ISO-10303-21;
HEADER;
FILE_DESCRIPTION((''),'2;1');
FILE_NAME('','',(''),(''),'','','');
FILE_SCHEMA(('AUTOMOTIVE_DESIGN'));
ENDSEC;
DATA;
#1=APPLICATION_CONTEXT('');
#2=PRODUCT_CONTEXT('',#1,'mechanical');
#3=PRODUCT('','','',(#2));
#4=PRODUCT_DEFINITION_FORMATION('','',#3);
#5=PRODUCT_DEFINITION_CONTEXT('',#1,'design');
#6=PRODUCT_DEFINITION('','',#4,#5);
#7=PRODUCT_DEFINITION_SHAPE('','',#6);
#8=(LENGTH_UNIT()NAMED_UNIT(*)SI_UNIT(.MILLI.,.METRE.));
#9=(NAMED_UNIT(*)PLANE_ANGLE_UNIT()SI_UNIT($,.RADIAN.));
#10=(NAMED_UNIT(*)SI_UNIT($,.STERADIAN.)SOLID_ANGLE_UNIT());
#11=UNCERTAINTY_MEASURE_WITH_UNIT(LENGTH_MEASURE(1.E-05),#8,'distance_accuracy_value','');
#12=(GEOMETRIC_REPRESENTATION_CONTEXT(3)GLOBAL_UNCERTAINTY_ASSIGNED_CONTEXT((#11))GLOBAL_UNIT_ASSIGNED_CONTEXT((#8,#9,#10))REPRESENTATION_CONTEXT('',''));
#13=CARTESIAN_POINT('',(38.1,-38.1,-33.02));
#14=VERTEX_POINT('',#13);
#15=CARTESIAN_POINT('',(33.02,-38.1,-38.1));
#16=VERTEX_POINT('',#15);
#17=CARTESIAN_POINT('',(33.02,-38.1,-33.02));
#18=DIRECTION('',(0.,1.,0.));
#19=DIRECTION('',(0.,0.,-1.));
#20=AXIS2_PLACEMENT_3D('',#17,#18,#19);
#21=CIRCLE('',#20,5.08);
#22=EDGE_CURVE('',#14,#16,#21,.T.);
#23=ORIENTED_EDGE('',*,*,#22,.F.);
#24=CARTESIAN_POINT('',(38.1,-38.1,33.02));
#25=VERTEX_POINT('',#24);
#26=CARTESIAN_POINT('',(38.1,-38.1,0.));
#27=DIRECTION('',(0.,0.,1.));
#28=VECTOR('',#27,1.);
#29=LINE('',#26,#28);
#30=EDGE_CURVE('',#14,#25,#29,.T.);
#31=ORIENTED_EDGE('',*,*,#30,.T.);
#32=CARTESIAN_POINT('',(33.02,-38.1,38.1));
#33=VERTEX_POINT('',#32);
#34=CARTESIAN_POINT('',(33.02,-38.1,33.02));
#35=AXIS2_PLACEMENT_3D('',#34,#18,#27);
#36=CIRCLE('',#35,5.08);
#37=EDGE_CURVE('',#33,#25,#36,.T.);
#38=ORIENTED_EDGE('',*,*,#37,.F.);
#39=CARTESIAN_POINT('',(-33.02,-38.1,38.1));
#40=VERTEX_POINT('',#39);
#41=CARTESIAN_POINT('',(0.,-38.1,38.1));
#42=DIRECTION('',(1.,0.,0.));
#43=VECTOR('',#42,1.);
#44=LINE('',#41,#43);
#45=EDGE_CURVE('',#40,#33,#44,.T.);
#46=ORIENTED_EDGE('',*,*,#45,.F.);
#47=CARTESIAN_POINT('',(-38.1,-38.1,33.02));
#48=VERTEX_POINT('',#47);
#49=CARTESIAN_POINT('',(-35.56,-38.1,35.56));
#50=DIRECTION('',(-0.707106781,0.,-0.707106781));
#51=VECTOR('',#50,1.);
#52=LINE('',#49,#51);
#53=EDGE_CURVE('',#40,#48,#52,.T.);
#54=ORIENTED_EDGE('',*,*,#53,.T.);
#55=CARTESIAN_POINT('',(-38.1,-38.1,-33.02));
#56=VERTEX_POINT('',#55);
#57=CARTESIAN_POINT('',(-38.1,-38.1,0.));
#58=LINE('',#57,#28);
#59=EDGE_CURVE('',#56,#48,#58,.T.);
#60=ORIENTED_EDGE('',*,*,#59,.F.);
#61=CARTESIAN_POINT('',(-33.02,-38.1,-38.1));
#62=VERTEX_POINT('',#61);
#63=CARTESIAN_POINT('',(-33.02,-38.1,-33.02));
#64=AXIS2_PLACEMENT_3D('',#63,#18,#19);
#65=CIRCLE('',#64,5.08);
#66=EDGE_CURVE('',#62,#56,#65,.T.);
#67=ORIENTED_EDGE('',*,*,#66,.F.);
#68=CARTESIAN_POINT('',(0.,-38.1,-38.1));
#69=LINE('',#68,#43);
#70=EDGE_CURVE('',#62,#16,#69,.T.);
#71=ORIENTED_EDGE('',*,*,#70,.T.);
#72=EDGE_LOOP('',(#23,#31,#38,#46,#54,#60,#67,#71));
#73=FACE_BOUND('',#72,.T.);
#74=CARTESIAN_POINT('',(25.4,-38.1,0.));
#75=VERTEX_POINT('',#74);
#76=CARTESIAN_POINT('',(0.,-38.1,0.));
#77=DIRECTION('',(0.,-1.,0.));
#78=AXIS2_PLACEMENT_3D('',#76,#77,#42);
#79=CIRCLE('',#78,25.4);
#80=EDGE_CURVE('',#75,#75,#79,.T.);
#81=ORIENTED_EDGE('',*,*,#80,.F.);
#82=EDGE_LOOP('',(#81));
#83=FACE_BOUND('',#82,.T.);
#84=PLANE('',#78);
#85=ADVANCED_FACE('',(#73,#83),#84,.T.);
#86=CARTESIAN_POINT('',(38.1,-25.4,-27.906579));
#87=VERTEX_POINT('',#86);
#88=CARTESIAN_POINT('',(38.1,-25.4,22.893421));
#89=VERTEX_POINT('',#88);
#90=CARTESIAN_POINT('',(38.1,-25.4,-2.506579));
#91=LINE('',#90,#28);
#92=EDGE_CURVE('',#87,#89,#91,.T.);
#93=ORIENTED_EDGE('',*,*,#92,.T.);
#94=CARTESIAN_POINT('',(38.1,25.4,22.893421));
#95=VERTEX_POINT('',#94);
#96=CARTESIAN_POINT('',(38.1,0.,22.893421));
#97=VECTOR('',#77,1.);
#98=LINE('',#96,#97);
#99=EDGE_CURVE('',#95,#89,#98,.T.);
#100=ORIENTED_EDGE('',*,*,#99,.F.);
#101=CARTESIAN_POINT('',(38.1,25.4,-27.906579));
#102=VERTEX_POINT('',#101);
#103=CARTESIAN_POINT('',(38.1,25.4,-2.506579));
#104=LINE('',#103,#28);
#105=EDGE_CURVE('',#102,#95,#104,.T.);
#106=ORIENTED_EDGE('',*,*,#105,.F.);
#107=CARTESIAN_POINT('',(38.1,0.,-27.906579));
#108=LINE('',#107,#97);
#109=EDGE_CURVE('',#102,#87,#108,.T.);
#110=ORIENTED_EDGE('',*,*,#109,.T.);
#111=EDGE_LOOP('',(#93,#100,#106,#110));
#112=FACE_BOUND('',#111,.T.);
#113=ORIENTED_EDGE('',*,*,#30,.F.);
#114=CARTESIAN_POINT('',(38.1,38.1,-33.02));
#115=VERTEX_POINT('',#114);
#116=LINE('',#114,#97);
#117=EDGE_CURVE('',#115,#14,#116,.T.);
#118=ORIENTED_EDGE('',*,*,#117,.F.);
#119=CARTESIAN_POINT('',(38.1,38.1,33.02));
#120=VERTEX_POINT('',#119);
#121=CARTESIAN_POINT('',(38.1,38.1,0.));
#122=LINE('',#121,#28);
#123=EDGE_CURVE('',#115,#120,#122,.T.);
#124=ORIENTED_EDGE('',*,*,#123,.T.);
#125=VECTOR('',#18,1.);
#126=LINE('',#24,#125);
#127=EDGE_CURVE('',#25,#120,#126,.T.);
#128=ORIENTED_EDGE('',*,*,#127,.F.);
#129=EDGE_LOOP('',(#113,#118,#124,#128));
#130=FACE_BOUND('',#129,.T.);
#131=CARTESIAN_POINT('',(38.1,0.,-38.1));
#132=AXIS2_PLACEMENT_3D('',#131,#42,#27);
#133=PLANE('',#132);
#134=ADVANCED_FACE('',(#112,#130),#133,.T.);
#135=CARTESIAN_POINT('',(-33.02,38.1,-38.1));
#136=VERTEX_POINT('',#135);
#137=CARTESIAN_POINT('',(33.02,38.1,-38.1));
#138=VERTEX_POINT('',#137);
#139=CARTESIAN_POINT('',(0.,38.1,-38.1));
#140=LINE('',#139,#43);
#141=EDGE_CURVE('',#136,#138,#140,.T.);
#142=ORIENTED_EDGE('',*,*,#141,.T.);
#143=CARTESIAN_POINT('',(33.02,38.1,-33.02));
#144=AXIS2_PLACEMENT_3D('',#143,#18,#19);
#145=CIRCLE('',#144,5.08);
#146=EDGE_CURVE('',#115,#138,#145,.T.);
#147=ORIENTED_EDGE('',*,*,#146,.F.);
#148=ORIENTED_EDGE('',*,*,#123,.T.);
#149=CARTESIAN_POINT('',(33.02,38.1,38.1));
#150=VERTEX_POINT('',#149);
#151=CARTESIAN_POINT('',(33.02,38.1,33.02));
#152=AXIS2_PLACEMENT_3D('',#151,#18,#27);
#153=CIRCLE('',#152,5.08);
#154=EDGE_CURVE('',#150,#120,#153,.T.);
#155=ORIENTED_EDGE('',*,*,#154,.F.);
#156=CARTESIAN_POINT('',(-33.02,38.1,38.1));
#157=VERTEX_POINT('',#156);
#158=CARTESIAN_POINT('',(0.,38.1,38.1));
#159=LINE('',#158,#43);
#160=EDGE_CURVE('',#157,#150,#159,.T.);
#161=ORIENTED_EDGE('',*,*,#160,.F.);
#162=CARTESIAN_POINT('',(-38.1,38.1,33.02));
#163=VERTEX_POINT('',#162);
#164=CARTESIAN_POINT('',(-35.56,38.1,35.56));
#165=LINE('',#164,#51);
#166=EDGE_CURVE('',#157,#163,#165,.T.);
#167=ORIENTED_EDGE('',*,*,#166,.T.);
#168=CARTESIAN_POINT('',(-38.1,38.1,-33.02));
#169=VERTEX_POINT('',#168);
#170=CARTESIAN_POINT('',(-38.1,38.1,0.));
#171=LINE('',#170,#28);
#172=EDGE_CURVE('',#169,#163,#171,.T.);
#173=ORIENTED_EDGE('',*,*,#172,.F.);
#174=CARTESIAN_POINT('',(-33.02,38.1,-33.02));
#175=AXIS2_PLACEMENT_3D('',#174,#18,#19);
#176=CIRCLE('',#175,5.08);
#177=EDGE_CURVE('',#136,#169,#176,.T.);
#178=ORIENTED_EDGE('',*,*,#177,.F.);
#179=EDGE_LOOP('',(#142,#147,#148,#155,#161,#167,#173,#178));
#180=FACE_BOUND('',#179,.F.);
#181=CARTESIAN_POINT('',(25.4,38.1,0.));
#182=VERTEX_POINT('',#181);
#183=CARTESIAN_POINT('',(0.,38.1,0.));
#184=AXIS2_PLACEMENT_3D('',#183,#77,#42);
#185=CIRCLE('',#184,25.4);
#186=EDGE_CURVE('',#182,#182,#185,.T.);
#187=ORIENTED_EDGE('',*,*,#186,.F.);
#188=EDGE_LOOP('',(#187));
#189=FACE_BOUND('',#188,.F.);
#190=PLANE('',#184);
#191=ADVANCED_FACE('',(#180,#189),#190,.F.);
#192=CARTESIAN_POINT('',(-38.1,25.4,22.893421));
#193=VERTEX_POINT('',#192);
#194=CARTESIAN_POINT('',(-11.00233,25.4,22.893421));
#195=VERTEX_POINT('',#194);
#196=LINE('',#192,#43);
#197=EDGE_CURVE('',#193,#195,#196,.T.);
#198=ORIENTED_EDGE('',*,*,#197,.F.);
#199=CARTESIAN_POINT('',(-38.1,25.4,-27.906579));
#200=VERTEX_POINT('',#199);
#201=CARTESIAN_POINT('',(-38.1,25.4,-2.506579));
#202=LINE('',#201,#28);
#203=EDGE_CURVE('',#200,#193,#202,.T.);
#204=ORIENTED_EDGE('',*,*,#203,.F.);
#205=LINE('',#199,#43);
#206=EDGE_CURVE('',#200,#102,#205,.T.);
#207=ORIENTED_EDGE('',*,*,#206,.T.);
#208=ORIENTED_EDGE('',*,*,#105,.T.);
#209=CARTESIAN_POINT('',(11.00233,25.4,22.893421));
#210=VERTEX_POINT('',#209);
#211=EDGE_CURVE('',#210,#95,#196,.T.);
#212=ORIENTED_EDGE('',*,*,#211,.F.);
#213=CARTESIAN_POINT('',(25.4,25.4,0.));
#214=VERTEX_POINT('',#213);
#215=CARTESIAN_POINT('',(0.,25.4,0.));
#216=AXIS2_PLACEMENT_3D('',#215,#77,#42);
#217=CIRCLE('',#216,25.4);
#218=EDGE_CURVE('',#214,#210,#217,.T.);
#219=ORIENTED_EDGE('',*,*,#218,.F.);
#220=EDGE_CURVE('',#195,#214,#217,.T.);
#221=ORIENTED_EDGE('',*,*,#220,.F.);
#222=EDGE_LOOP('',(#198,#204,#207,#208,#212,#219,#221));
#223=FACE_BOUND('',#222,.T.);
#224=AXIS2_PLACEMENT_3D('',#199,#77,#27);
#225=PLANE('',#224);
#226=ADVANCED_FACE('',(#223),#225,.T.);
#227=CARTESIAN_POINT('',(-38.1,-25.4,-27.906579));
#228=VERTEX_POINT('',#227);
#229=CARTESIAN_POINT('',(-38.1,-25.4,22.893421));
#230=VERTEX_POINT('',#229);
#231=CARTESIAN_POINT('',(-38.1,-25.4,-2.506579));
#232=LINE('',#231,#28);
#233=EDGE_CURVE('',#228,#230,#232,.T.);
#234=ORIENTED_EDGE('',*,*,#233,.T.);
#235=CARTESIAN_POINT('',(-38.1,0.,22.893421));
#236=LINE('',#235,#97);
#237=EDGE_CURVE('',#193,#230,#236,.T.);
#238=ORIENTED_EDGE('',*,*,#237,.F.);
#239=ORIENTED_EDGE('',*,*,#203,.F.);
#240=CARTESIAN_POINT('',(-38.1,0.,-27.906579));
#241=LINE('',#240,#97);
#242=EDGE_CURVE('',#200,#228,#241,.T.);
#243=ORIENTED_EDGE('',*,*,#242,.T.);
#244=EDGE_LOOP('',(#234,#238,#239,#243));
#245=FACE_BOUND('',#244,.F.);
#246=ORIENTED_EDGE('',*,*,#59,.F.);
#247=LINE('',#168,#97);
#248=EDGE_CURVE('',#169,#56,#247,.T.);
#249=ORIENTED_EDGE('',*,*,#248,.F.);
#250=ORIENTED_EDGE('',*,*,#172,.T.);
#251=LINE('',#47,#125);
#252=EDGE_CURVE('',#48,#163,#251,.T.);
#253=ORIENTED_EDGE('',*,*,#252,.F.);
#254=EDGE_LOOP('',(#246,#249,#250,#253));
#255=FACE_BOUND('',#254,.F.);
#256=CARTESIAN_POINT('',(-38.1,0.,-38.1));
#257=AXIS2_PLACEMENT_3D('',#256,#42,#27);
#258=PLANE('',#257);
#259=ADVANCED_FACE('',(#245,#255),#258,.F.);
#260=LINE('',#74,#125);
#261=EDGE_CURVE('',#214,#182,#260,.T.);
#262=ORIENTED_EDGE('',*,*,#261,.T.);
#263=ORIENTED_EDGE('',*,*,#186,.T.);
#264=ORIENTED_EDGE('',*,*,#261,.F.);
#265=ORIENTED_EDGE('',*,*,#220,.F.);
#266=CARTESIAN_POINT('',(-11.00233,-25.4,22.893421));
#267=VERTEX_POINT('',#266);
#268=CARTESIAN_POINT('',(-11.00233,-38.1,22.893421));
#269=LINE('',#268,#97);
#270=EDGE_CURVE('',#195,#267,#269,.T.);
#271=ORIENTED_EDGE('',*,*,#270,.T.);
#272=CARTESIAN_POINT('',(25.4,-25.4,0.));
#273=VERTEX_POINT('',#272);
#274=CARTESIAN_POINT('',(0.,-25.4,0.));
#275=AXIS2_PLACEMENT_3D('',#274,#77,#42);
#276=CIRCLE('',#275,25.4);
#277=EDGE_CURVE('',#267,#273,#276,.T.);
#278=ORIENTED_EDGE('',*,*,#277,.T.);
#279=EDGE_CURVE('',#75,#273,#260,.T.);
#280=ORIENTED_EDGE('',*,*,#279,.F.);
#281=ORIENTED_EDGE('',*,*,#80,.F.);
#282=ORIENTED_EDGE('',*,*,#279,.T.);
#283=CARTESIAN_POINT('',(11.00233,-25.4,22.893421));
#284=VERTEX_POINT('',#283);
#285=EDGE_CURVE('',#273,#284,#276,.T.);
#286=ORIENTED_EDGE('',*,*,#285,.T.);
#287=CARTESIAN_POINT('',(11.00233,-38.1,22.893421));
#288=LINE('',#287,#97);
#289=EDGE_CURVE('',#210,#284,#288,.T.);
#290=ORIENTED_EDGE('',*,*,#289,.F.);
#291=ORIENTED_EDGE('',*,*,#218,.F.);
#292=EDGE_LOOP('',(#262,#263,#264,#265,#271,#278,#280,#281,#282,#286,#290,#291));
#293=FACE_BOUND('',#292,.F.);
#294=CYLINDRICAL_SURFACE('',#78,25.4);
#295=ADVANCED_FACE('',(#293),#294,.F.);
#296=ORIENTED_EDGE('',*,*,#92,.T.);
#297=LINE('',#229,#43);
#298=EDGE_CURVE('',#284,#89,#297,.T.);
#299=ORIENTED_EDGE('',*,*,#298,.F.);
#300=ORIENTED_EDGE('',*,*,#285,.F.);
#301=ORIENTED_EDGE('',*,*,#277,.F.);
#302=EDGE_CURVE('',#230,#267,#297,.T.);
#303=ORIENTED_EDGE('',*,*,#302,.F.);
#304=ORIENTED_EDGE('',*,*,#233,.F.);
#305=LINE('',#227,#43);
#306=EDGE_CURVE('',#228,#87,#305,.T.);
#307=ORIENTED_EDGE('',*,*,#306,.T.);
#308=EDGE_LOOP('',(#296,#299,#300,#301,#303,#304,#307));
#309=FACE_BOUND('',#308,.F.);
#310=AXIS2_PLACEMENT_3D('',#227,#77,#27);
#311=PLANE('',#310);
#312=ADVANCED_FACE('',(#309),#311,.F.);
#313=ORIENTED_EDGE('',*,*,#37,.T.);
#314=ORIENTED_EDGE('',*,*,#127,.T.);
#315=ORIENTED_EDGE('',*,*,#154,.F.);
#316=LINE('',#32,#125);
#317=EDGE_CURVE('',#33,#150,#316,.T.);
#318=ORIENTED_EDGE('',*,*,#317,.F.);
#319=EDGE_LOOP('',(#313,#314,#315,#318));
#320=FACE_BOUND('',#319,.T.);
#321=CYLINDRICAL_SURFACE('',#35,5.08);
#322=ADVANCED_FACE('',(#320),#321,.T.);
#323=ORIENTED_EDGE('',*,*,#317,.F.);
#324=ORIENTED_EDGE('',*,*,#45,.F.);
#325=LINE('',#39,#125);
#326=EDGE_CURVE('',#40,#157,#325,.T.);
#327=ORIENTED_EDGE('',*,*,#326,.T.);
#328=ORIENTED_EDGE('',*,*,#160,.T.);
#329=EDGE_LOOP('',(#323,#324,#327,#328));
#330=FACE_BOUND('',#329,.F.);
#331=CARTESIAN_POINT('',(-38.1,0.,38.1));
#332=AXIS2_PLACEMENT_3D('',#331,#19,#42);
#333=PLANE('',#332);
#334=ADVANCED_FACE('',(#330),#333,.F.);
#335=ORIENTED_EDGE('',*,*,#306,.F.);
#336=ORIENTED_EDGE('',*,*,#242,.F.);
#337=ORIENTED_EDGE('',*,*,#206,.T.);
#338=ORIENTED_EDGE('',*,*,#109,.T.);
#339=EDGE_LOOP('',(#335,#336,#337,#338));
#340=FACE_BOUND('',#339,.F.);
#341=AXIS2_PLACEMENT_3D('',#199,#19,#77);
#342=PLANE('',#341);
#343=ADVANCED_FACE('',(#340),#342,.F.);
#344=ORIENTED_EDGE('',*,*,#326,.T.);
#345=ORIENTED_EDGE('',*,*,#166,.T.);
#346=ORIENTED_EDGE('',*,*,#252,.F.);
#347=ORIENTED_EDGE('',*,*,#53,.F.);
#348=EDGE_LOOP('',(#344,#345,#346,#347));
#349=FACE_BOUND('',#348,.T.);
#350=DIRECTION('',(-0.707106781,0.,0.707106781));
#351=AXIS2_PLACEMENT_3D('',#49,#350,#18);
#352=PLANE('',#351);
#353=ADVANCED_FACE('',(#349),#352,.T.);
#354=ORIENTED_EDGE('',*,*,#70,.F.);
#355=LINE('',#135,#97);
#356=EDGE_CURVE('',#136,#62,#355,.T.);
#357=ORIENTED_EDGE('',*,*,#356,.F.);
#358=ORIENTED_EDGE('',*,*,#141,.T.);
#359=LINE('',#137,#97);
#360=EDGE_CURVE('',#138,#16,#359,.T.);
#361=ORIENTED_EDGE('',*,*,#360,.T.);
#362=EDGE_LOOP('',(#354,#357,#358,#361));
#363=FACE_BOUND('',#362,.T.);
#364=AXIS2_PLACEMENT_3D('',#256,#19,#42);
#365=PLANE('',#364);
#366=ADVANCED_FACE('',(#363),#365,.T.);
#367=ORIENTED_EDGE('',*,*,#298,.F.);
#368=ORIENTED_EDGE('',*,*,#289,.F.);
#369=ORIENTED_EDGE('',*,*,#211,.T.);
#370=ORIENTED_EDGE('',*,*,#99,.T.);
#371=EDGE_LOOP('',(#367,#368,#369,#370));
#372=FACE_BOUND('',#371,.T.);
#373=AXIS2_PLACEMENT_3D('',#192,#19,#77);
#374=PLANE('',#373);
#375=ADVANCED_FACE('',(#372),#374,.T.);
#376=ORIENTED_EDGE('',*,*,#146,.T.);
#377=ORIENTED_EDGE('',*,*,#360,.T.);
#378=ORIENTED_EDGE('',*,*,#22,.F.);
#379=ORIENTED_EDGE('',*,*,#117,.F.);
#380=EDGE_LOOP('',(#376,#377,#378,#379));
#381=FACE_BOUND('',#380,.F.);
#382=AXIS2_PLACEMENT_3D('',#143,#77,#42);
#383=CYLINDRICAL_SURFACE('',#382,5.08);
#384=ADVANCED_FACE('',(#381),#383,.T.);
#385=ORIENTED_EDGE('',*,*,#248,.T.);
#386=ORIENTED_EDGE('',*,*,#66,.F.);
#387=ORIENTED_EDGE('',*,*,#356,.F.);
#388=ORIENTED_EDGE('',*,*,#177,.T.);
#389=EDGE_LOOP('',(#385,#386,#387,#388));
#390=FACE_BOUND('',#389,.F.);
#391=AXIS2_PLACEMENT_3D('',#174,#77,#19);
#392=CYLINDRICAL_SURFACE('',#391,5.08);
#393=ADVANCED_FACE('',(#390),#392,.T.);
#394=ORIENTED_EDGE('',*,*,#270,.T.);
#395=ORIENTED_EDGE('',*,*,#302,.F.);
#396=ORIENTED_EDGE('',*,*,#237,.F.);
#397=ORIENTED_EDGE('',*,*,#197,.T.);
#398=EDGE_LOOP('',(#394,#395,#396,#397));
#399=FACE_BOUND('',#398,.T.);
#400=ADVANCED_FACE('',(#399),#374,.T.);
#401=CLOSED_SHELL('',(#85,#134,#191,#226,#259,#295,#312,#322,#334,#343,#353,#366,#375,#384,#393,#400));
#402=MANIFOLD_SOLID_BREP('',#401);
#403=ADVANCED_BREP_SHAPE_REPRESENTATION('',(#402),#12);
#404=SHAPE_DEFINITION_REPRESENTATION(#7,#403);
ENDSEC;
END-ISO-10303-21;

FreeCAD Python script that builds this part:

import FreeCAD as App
import Part
import Sketcher

V = App.Vector
Q = App.Units.Quantity


def edges_at(feature, points):
    """Names of the edges that pass closest to the given points."""
    edges = feature.Shape.Edges
    near = lambda p: min(range(len(edges)), key=lambda i: edges[i].distToShape(Part.Vertex(*p))[0])
    return sorted({f"Edge{near(p) + 1}" for p in points})


def add_polygon(sketch, points):
    """Adds a closed chain of lines whose ends are joined by coincident constraints."""
    first, n = sketch.GeometryCount, len(points)
    for a, b in zip(points, points[1:] + points[:1]):
        sketch.addGeometry(Part.LineSegment(App.Vector(*a, 0), App.Vector(*b, 0)), False)
    for i in range(n):
        sketch.addConstraint(Sketcher.Constraint("Coincident", first + i, 2, first + (i + 1) % n, 1))

doc = App.newDocument("Part")
body = doc.addObject("PartDesign::Body", "Body")

sketch1 = body.newObject("Sketcher::SketchObject", "Sketch")
sketch1.AttachmentSupport = (doc.getObject("XZ_Plane"), [""])
sketch1.MapMode = "FlatFace"
add_polygon(sketch1, [(-38.1, 38.1), (-38.1, -38.1), (38.1, -38.1), (38.1, 38.1)])
sketch1.addConstraint(Sketcher.Constraint("Vertical", 0))
sketch1.addConstraint(Sketcher.Constraint("Horizontal", 1))
sketch1.addConstraint(Sketcher.Constraint("Vertical", 2))
sketch1.addConstraint(Sketcher.Constraint("Horizontal", 3))
sketch1.addConstraint(Sketcher.Constraint("Symmetric", 0, 2, 2, 2, -1, 1))
sketch1.addConstraint(Sketcher.Constraint("Equal", 3, 0))
sketch1.addConstraint(Sketcher.Constraint("DistanceX", 1, 1, 1, 2, Q("3 in")))
pad1 = body.newObject("PartDesign::Pad", "Pad")
pad1.Profile = sketch1
pad1.Length = Q("3 in")
pad1.Midplane = True

sketch2 = body.newObject("Sketcher::SketchObject", "Sketch001")
sketch2.AttachmentSupport = (doc.getObject("XZ_Plane"), [""])
sketch2.MapMode = "FlatFace"
sketch2.AttachmentOffset = App.Placement(V(0, 0, 1.5 * 25.4), App.Rotation())
sketch2.addGeometry(Part.Circle(V(0, 0, 0), V(0, 0, 1), 25.4), False)
sketch2.addConstraint(Sketcher.Constraint("Coincident", 0, 3, -1, 1))
sketch2.addConstraint(Sketcher.Constraint("Diameter", 0, Q("2 in")))
pocket1 = body.newObject("PartDesign::Pocket", "Pocket")
pocket1.Profile = sketch2
pocket1.Length = Q("3 in")
doc.recompute()

fillet = body.newObject("PartDesign::Fillet", "Fillet")
fillet.Base = (pocket1, edges_at(pocket1, [(38.1, 0, 38.1)]))
fillet.Radius = Q("0.2 in")
doc.recompute()

chamfer = body.newObject("PartDesign::Chamfer", "Chamfer")
chamfer.Base = (fillet, edges_at(fillet, [(-38.1, 0, 38.1)]))
chamfer.Size = Q("0.2 in")
doc.recompute()

fillet2 = body.newObject("PartDesign::Fillet", "Fillet001")
fillet2.Base = (chamfer, edges_at(chamfer, [(38.1, 0, -38.1)]))
fillet2.Radius = Q("0.2 in")
doc.recompute()

fillet3 = body.newObject("PartDesign::Fillet", "Fillet002")
fillet3.Base = (fillet2, edges_at(fillet2, [(-38.1, 0, -38.1)]))
fillet3.Radius = Q("0.2 in")

sketch3 = body.newObject("Sketcher::SketchObject", "Sketch002")
sketch3.AttachmentSupport = (doc.getObject("YZ_Plane"), [""])
sketch3.MapMode = "FlatFace"
sketch3.AttachmentOffset = App.Placement(V(0, 0, -1.5 * 25.4), App.Rotation())
add_polygon(sketch3, [(25.4, 22.893421), (25.4, -27.906579), (-25.4, -27.906579), (-25.4, 22.893421)])
sketch3.addConstraint(Sketcher.Constraint("Vertical", 0))
sketch3.addConstraint(Sketcher.Constraint("Horizontal", 1))
sketch3.addConstraint(Sketcher.Constraint("Vertical", 2))
sketch3.addConstraint(Sketcher.Constraint("Horizontal", 3))
sketch3.addConstraint(Sketcher.Constraint("Equal", 3, 0))
sketch3.addConstraint(Sketcher.Constraint("DistanceX", 1, 2, 1, 1, Q("2 in")))
sketch3.addConstraint(Sketcher.Constraint("DistanceX", -1, 1, 0, 2, Q("1 in")))
sketch3.addConstraint(Sketcher.Constraint("DistanceY", 0, 2, -1, 1, 27.906579))
pocket2 = body.newObject("PartDesign::Pocket", "Pocket001")
pocket2.Profile = sketch3
pocket2.Length = Q("3 in")
pocket2.Reversed = True

doc.recompute()
